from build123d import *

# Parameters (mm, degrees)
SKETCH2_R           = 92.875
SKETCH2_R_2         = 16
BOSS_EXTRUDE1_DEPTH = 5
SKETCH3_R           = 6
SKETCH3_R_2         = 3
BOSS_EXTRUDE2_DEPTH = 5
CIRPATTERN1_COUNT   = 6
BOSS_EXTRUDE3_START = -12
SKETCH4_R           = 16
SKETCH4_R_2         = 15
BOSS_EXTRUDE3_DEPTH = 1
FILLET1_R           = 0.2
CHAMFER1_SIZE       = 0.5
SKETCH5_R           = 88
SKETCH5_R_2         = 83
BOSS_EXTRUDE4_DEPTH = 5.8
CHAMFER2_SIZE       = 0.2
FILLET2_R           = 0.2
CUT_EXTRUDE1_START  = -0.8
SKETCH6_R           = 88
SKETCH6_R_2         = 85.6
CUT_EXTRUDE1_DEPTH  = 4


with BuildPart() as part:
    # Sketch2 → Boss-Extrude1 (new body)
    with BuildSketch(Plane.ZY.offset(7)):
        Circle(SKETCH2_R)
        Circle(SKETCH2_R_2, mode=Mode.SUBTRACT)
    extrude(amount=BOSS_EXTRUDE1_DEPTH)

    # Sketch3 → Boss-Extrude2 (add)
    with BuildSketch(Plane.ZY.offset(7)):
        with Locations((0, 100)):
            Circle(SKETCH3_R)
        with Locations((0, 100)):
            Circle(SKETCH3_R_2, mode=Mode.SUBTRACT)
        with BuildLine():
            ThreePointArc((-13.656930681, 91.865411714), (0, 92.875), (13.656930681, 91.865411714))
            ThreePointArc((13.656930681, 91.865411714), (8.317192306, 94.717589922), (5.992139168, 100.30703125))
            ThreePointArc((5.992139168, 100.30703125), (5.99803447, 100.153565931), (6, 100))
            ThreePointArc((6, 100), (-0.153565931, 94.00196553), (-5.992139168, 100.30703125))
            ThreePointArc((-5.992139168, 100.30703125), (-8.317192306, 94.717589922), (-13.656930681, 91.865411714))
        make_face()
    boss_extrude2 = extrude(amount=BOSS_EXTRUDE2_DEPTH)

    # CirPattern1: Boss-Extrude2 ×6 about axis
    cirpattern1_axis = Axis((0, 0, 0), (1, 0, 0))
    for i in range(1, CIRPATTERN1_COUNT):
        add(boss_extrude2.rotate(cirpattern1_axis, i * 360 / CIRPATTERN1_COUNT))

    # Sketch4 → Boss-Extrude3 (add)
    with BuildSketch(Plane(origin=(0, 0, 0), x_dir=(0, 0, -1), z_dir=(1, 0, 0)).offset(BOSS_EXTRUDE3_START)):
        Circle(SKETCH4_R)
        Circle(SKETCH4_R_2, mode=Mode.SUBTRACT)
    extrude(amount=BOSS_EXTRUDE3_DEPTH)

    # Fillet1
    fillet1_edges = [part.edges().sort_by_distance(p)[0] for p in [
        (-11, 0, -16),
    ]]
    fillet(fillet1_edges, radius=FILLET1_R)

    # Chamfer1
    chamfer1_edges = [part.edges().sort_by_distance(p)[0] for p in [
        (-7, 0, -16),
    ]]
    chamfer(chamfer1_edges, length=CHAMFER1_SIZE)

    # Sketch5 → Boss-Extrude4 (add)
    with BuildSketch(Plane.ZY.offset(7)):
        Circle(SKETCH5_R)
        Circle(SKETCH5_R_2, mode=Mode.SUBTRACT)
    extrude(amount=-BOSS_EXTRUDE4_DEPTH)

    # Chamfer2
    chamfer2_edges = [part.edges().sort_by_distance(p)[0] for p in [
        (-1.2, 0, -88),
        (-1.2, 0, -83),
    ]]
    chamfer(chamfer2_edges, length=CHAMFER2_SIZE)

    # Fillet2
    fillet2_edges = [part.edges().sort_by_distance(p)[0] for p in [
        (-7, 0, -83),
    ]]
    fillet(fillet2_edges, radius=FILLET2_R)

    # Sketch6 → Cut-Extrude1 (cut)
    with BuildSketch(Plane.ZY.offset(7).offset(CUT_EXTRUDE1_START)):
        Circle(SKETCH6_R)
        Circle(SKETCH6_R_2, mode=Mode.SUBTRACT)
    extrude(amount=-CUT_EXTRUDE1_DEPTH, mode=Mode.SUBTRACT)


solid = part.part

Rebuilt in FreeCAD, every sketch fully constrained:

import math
import FreeCAD as App
import Part
import Sketcher
from FreeCAD import Vector


def edges_at(feature, points):
    """Names of the edges that pass closest to the given points."""
    edges = feature.Shape.Edges
    near = lambda p: min(range(len(edges)), key=lambda i: edges[i].distToShape(Part.Vertex(*p))[0])
    return sorted({f"Edge{near(p) + 1}" for p in points})

doc = App.newDocument("Part")
body = doc.addObject("PartDesign::Body", "Body")

sketch1 = doc.addObject("Sketcher::SketchObject", "Sketch")
body.addObject(sketch1)
sketch1.AttachmentSupport = (doc.YZ_Plane, [""])
sketch1.MapMode = "FlatFace"
sketch1.AttachmentOffset = App.Placement(Vector(0, 0, -7), App.Rotation())
sketch1.addGeometry(Part.Circle(Vector(0, 0, 0), Vector(0, 0, 1), 92.875), False)
sketch1.addGeometry(Part.Circle(Vector(0, 0, 0), Vector(0, 0, 1), 16), False)
sketch1.addConstraint(Sketcher.Constraint("Coincident", 0, 3, -1, 1))
sketch1.addConstraint(Sketcher.Constraint("Coincident", 1, 3, -1, 1))
sketch1.addConstraint(Sketcher.Constraint("Diameter", 1, 32.0))
sketch1.addConstraint(Sketcher.Constraint("Diameter", 0, 185.75))
pad1 = doc.addObject("PartDesign::Pad", "Pad")
body.addObject(pad1)
pad1.Profile = sketch1
pad1.Length = 5
pad1.Reversed = True

sketch2 = doc.addObject("Sketcher::SketchObject", "Sketch001")
body.addObject(sketch2)
sketch2.AttachmentSupport = (doc.YZ_Plane, [""])
sketch2.MapMode = "FlatFace"
sketch2.AttachmentOffset = App.Placement(Vector(0, 0, -7), App.Rotation())
sketch2.addGeometry(Part.ArcOfCircle(Part.Circle(Vector(100, 0, 0), Vector(0, 0, 1), 6), math.radians(-87.066786), math.radians(87.066786)), False)
sketch2.addGeometry(Part.ArcOfCircle(Part.Circle(Vector(100.767578, -14.980348, 0), Vector(0, 0, 1), 9), math.radians(92.933214), math.radians(171.544203)), False)
sketch2.addGeometry(Part.ArcOfCircle(Part.Circle(Vector(0, 0, 0), Vector(0, 0, 1), 92.875), math.radians(-8.455797), math.radians(8.455797)), False)
sketch2.addGeometry(Part.ArcOfCircle(Part.Circle(Vector(100.767578, 14.980348, 0), Vector(0, 0, 1), 9), math.radians(-171.544203), math.radians(-92.933214)), False)
sketch2.addGeometry(Part.Circle(Vector(100, 0, 0), Vector(0, 0, 1), 3), False)
sketch2.addConstraint(Sketcher.Constraint("Tangent", 0, 1, 1, 1))
sketch2.addConstraint(Sketcher.Constraint("Tangent", 1, 2, 2, 1))
sketch2.addConstraint(Sketcher.Constraint("Tangent", 2, 2, 3, 1))
sketch2.addConstraint(Sketcher.Constraint("Tangent", 3, 2, 0, 2))
sketch2.addConstraint(Sketcher.Constraint("Coincident", 2, 3, -1, 1))
sketch2.addConstraint(Sketcher.Constraint("Coincident", 4, 3, 0, 3))
sketch2.addConstraint(Sketcher.Constraint("Equal", 1, 3))
sketch2.addConstraint(Sketcher.Constraint("PointOnObject", 0, 3, -1))
sketch2.addConstraint(Sketcher.Constraint("Diameter", 4, 6.0))
sketch2.addConstraint(Sketcher.Constraint("Radius", 0, 6.0))
sketch2.addConstraint(Sketcher.Constraint("Radius", 1, 9.0))
sketch2.addConstraint(Sketcher.Constraint("DistanceX", -1, 1, 0, 3, 100.0))
sketch2.addConstraint(Sketcher.Constraint("Radius", 2, 92.875))
pad2 = doc.addObject("PartDesign::Pad", "Pad001")
body.addObject(pad2)
pad2.Profile = sketch2
pad2.Length = 5
pad2.Reversed = True
doc.recompute()

polarpattern = doc.addObject("PartDesign::PolarPattern", "PolarPattern")
body.addObject(polarpattern)
polarpattern.Originals = [pad2]
polarpattern.Axis = (doc.X_Axis, [""])
polarpattern.Angle = 360
polarpattern.Occurrences = 6
body.Tip = polarpattern

sketch3 = doc.addObject("Sketcher::SketchObject", "Sketch002")
body.addObject(sketch3)
sketch3.AttachmentSupport = (doc.YZ_Plane, [""])
sketch3.MapMode = "FlatFace"
sketch3.AttachmentOffset = App.Placement(Vector(0, 0, -12), App.Rotation())
sketch3.addGeometry(Part.Circle(Vector(0, 0, 0), Vector(0, 0, 1), 16), False)
sketch3.addGeometry(Part.Circle(Vector(0, 0, 0), Vector(0, 0, 1), 15), False)
sketch3.addConstraint(Sketcher.Constraint("Coincident", 0, 3, -1, 1))
sketch3.addConstraint(Sketcher.Constraint("Coincident", 1, 3, -1, 1))
sketch3.addConstraint(Sketcher.Constraint("Diameter", 0, 32.0))
sketch3.addConstraint(Sketcher.Constraint("Diameter", 1, 30.0))
pad3 = doc.addObject("PartDesign::Pad", "Pad002")
body.addObject(pad3)
pad3.Profile = sketch3
pad3.Length = 1
doc.recompute()

fillet = doc.addObject("PartDesign::Fillet", "Fillet")
body.addObject(fillet)
fillet.Base = (pad3, edges_at(pad3, [(-11, 0, -16)]))
fillet.Radius = 0.2
doc.recompute()

chamfer = doc.addObject("PartDesign::Chamfer", "Chamfer")
body.addObject(chamfer)
chamfer.Base = (fillet, edges_at(fillet, [(-7, 0, -16)]))
chamfer.Size = 0.5

sketch4 = doc.addObject("Sketcher::SketchObject", "Sketch003")
body.addObject(sketch4)
sketch4.AttachmentSupport = (doc.YZ_Plane, [""])
sketch4.MapMode = "FlatFace"
sketch4.AttachmentOffset = App.Placement(Vector(0, 0, -7), App.Rotation())
sketch4.addGeometry(Part.Circle(Vector(0, 0, 0), Vector(0, 0, 1), 88), False)
sketch4.addGeometry(Part.Circle(Vector(0, 0, 0), Vector(0, 0, 1), 83), False)
sketch4.addConstraint(Sketcher.Constraint("Coincident", 0, 3, -1, 1))
sketch4.addConstraint(Sketcher.Constraint("Coincident", 1, 3, -1, 1))
sketch4.addConstraint(Sketcher.Constraint("Diameter", 0, 176.0))
sketch4.addConstraint(Sketcher.Constraint("Diameter", 1, 166.0))
pad4 = doc.addObject("PartDesign::Pad", "Pad003")
body.addObject(pad4)
pad4.Profile = sketch4
pad4.Length = 5.8
doc.recompute()

chamfer2 = doc.addObject("PartDesign::Chamfer", "Chamfer001")
body.addObject(chamfer2)
chamfer2.Base = (pad4, edges_at(pad4, [(-1.2, 0, -88), (-1.2, 0, -83)]))
chamfer2.Size = 0.2
doc.recompute()

fillet2 = doc.addObject("PartDesign::Fillet", "Fillet001")
body.addObject(fillet2)
fillet2.Base = (chamfer2, edges_at(chamfer2, [(-7, 0, -83)]))
fillet2.Radius = 0.2

sketch5 = doc.addObject("Sketcher::SketchObject", "Sketch004")
body.addObject(sketch5)
sketch5.AttachmentSupport = (doc.YZ_Plane, [""])
sketch5.MapMode = "FlatFace"
sketch5.AttachmentOffset = App.Placement(Vector(0, 0, -6.2), App.Rotation())
sketch5.addGeometry(Part.Circle(Vector(0, 0, 0), Vector(0, 0, 1), 88), False)
sketch5.addGeometry(Part.Circle(Vector(0, 0, 0), Vector(0, 0, 1), 85.6), False)
sketch5.addConstraint(Sketcher.Constraint("Coincident", 0, 3, -1, 1))
sketch5.addConstraint(Sketcher.Constraint("Coincident", 1, 3, -1, 1))
sketch5.addConstraint(Sketcher.Constraint("Diameter", 0, 176.0))
sketch5.addConstraint(Sketcher.Constraint("Diameter", 1, 171.2))
pocket1 = doc.addObject("PartDesign::Pocket", "Pocket")
body.addObject(pocket1)
pocket1.Profile = sketch5
pocket1.Length = 4
pocket1.Reversed = True

doc.recompute()
